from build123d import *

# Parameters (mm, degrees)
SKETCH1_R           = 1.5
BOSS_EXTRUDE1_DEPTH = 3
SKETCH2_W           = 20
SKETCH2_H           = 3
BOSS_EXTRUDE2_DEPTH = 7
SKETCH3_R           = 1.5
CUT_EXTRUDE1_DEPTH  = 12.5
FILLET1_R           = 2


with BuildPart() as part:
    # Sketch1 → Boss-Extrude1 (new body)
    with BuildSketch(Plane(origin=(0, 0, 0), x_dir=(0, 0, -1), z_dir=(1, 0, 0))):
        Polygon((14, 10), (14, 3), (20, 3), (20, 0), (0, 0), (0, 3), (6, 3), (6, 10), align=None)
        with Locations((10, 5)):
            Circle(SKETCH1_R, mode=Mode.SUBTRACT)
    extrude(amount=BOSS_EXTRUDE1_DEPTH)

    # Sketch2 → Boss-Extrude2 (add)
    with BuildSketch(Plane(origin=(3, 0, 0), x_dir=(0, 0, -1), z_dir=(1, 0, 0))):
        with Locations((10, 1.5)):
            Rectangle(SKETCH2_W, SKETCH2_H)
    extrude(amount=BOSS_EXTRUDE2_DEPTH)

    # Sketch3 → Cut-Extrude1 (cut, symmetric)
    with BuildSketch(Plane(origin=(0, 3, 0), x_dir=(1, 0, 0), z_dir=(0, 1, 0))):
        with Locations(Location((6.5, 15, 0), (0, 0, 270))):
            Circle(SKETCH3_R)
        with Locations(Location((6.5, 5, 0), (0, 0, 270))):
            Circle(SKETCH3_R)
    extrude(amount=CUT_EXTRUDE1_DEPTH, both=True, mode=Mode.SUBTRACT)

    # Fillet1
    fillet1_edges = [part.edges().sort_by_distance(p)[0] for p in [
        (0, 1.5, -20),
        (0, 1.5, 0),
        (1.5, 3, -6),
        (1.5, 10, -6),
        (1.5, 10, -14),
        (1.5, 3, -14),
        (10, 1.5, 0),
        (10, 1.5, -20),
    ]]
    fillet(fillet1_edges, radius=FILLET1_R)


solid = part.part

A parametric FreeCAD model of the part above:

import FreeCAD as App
import Part
import Sketcher


def edges_at(feature, points):
    """Names of the edges that pass closest to the given points."""
    edges = feature.Shape.Edges
    near = lambda p: min(range(len(edges)), key=lambda i: edges[i].distToShape(Part.Vertex(*p))[0])
    return sorted({f"Edge{near(p) + 1}" for p in points})

doc = App.newDocument("Part")
body = doc.addObject("PartDesign::Body", "Body")

# Sketch on YZ plane
sketch1 = doc.addObject("Sketcher::SketchObject", "Sketch")
body.addObject(sketch1)
sketch1.AttachmentSupport = (doc.YZ_Plane, [""])
sketch1.MapMode = "FlatFace"
sketch1.addGeometry(Part.LineSegment(App.Vector(3, -14, 0), App.Vector(10, -14, 0)), False)
sketch1.addGeometry(Part.LineSegment(App.Vector(10, -14, 0), App.Vector(10, -6, 0)), False)
sketch1.addGeometry(Part.LineSegment(App.Vector(10, -6, 0), App.Vector(3, -6, 0)), False)
sketch1.addGeometry(Part.LineSegment(App.Vector(3, -6, 0), App.Vector(3, 0, 0)), False)
sketch1.addGeometry(Part.LineSegment(App.Vector(3, 0, 0), App.Vector(0, 0, 0)), False)
sketch1.addGeometry(Part.LineSegment(App.Vector(0, 0, 0), App.Vector(0, -20, 0)), False)
sketch1.addGeometry(Part.LineSegment(App.Vector(0, -20, 0), App.Vector(3, -20, 0)), False)
sketch1.addGeometry(Part.LineSegment(App.Vector(3, -20, 0), App.Vector(3, -14, 0)), False)
sketch1.addGeometry(Part.Circle(App.Vector(5, -10, 0), App.Vector(0, 0, 1), 1.5), False)
sketch1.addConstraint(Sketcher.Constraint("Coincident", 0, 2, 1, 1))
sketch1.addConstraint(Sketcher.Constraint("Coincident", 1, 2, 2, 1))
sketch1.addConstraint(Sketcher.Constraint("Coincident", 2, 2, 3, 1))
sketch1.addConstraint(Sketcher.Constraint("Coincident", 3, 2, 4, 1))
sketch1.addConstraint(Sketcher.Constraint("Coincident", 4, 2, 5, 1))
sketch1.addConstraint(Sketcher.Constraint("Coincident", 5, 2, 6, 1))
sketch1.addConstraint(Sketcher.Constraint("Coincident", 6, 2, 7, 1))
sketch1.addConstraint(Sketcher.Constraint("Coincident", 7, 2, 0, 1))
sketch1.addConstraint(Sketcher.Constraint("Horizontal", 0))
sketch1.addConstraint(Sketcher.Constraint("Vertical", 1))
sketch1.addConstraint(Sketcher.Constraint("Horizontal", 2))
sketch1.addConstraint(Sketcher.Constraint("Vertical", 3))
sketch1.addConstraint(Sketcher.Constraint("Horizontal", 4))
sketch1.addConstraint(Sketcher.Constraint("Vertical", 5))
sketch1.addConstraint(Sketcher.Constraint("Horizontal", 6))
sketch1.addConstraint(Sketcher.Constraint("Vertical", 7))
sketch1.addConstraint(Sketcher.Constraint("Coincident", 4, 2, -1, 1))
sketch1.addConstraint(Sketcher.Constraint("Vertical", 3, 2, 6, 2))
sketch1.addConstraint(Sketcher.Constraint("Equal", 3, 7))
sketch1.addConstraint(Sketcher.Constraint("Diameter", 8, 3.0))
sketch1.addConstraint(Sketcher.Constraint("DistanceX", 0, 1, 0, 2, 7.0))
sketch1.addConstraint(Sketcher.Constraint("DistanceX", 4, 2, 4, 1, 3.0))
sketch1.addConstraint(Sketcher.Constraint("DistanceY", 1, 1, 1, 2, 8.0))
sketch1.addConstraint(Sketcher.Constraint("DistanceY", 3, 1, 3, 2, 6.0))
sketch1.addConstraint(Sketcher.Constraint("DistanceX", -1, 1, 8, 3, 5.0))
sketch1.addConstraint(Sketcher.Constraint("DistanceY", 8, 3, -1, 1, 10.0))
pad1 = doc.addObject("PartDesign::Pad", "Pad")
body.addObject(pad1)
pad1.Profile = sketch1
pad1.Length = 3

# Sketch on YZ plane
sketch2 = doc.addObject("Sketcher::SketchObject", "Sketch001")
body.addObject(sketch2)
sketch2.AttachmentSupport = (doc.YZ_Plane, [""])
sketch2.MapMode = "FlatFace"
sketch2.AttachmentOffset = App.Placement(App.Vector(0, 0, 3), App.Rotation())
sketch2.addGeometry(Part.LineSegment(App.Vector(3, 0, 0), App.Vector(0, 0, 0)), False)
sketch2.addGeometry(Part.LineSegment(App.Vector(0, 0, 0), App.Vector(0, -20, 0)), False)
sketch2.addGeometry(Part.LineSegment(App.Vector(0, -20, 0), App.Vector(3, -20, 0)), False)
sketch2.addGeometry(Part.LineSegment(App.Vector(3, -20, 0), App.Vector(3, 0, 0)), False)
sketch2.addConstraint(Sketcher.Constraint("Coincident", 0, 2, 1, 1))
sketch2.addConstraint(Sketcher.Constraint("Coincident", 1, 2, 2, 1))
sketch2.addConstraint(Sketcher.Constraint("Coincident", 2, 2, 3, 1))
sketch2.addConstraint(Sketcher.Constraint("Coincident", 3, 2, 0, 1))
sketch2.addConstraint(Sketcher.Constraint("Horizontal", 0))
sketch2.addConstraint(Sketcher.Constraint("Vertical", 1))
sketch2.addConstraint(Sketcher.Constraint("Horizontal", 2))
sketch2.addConstraint(Sketcher.Constraint("Vertical", 3))
sketch2.addConstraint(Sketcher.Constraint("Coincident", 0, 2, -1, 1))
sketch2.addConstraint(Sketcher.Constraint("DistanceX", 0, 2, 0, 1, 3.0))
sketch2.addConstraint(Sketcher.Constraint("DistanceY", 1, 2, 1, 1, 20.0))
pad2 = doc.addObject("PartDesign::Pad", "Pad001")
body.addObject(pad2)
pad2.Profile = sketch2
pad2.Length = 7

# Sketch on XZ plane
sketch3 = doc.addObject("Sketcher::SketchObject", "Sketch002")
body.addObject(sketch3)
sketch3.AttachmentSupport = (doc.XZ_Plane, [""])
sketch3.MapMode = "FlatFace"
sketch3.AttachmentOffset = App.Placement(App.Vector(0, 0, -3), App.Rotation())
sketch3.addGeometry(Part.Circle(App.Vector(6.5, -15, 0), App.Vector(0, 0, 1), 1.5), False)
sketch3.addGeometry(Part.Circle(App.Vector(6.5, -5, 0), App.Vector(0, 0, 1), 1.5), False)
sketch3.addConstraint(Sketcher.Constraint("Equal", 0, 1))
sketch3.addConstraint(Sketcher.Constraint("Vertical", 0, 3, 1, 3))
sketch3.addConstraint(Sketcher.Constraint("Diameter", 0, 3.0))
sketch3.addConstraint(Sketcher.Constraint("DistanceY", 0, 3, -1, 1, 15.0))
sketch3.addConstraint(Sketcher.Constraint("DistanceY", 1, 3, -1, 1, 5.0))
sketch3.addConstraint(Sketcher.Constraint("DistanceX", -1, 1, 0, 3, 6.5))
pocket1 = doc.addObject("PartDesign::Pocket", "Pocket")
body.addObject(pocket1)
pocket1.Profile = sketch3
pocket1.Length = 25
pocket1.Midplane = True
doc.recompute()

fillet = doc.addObject("PartDesign::Fillet", "Fillet")
body.addObject(fillet)
fillet.Base = (pocket1, edges_at(pocket1, [
    (0, 1.5, -20),
    (0, 1.5, 0),
    (1.5, 3, -6),
    (1.5, 10, -6),
    (1.5, 10, -14),
    (1.5, 3, -14),
    (10, 1.5, 0),
    (10, 1.5, -20),
]))
fillet.Radius = 2

doc.recompute()
